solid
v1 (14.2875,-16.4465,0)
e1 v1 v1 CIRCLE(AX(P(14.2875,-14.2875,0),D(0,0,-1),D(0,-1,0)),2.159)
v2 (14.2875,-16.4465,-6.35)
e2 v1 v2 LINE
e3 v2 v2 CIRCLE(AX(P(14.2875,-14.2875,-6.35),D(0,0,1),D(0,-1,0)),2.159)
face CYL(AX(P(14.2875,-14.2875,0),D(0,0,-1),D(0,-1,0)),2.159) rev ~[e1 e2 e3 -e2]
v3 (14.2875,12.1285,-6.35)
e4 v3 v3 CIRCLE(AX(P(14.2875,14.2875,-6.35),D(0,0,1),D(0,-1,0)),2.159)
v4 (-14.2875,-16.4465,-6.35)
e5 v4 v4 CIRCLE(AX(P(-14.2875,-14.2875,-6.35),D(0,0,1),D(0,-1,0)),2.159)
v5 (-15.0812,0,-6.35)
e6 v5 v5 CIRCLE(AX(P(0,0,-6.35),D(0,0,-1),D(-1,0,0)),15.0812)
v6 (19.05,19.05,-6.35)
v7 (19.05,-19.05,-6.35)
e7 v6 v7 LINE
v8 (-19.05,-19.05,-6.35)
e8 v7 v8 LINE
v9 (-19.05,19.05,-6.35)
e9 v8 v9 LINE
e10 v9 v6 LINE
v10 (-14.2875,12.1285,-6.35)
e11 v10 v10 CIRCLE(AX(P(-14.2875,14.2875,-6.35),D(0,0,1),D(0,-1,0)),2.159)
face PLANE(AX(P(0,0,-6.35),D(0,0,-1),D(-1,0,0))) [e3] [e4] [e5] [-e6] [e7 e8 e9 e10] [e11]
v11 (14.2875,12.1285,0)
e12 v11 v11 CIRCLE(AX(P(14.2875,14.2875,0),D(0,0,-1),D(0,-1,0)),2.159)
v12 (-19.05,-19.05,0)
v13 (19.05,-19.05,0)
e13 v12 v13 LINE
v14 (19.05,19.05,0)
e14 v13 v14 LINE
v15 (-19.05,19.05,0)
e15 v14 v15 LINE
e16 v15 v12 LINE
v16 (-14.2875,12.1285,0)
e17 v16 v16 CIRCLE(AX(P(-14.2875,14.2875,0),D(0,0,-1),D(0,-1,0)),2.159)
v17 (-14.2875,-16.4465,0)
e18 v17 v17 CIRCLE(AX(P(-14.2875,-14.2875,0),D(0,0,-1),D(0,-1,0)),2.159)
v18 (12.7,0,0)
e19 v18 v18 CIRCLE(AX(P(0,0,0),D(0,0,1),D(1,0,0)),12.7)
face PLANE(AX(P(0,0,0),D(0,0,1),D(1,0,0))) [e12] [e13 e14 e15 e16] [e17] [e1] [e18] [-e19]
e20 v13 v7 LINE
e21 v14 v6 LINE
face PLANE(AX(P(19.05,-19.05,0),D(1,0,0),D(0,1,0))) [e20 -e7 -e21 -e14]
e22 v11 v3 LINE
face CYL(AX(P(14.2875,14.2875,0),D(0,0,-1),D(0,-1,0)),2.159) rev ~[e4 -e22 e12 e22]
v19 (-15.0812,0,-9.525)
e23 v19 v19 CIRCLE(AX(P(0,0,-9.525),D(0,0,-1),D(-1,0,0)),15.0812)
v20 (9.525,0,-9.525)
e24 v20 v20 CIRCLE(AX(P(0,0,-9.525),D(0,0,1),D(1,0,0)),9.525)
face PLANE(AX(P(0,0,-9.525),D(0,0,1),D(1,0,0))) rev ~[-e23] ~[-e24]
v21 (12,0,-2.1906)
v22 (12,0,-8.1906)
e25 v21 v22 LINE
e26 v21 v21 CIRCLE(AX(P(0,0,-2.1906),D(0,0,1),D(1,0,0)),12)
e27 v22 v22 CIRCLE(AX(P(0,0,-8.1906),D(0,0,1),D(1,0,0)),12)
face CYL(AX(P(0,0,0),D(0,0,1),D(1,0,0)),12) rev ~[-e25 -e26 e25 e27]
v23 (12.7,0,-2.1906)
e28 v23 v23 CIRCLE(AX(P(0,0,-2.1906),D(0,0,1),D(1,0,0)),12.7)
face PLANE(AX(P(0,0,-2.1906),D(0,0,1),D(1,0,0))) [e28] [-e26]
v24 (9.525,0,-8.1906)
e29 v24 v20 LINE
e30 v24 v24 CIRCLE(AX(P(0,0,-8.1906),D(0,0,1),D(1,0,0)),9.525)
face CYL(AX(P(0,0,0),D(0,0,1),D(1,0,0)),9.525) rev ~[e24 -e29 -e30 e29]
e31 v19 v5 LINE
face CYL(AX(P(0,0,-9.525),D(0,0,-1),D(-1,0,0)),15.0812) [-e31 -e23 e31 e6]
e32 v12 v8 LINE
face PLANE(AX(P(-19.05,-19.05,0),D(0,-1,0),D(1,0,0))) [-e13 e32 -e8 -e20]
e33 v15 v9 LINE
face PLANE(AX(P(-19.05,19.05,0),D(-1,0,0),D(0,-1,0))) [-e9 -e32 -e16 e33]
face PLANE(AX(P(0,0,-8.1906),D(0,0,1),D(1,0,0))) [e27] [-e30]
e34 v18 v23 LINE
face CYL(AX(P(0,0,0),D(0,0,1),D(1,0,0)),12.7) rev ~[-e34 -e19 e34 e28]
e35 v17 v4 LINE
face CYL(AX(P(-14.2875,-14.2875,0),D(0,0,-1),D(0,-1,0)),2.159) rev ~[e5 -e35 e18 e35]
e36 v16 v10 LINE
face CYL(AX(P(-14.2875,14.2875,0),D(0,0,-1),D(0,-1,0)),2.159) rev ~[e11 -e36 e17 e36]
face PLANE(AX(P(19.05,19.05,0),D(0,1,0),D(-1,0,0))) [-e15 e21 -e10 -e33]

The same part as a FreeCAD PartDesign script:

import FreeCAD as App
import Part
import Sketcher
Q = App.Units.Quantity

doc = App.newDocument("Part")
params = doc.addObject("Spreadsheet::Sheet", "Params")
for row, (alias, value) in enumerate([
    ("sketch1_diameter", "0.75 in"),
    ("sketch1_width", "1.5 in"),
    ("pad1_length", "0.375 in"),
    ("sketch2_diameter", "1 in"),
    ("pocket1_length", "2.1906 mm"),
    ("sketch3_diameter", "0.75 in"),
    ("pocket2_length", "8.1906 mm"),
    ("sketch4_diameter", "0.17 in"),
    ("hole_diameter", "0.17 in"),
    ("sketch5_diameter", "1.1875 in"),
    ("sketch5_diameter2", "0.17 in"),
    ("sketch5_width", "1.5 in"),
    ("pocket3_length", "0.125 in"),
], start=1):
    params.set(f"A{row}", alias)
    params.set(f"B{row}", "=" + value)
    params.setAlias(f"B{row}", alias)

body = doc.addObject("PartDesign::Body", "Body")

# Sketch on XY plane
sketch1 = body.newObject("Sketcher::SketchObject", "Sketch")
sketch1.AttachmentSupport = (doc.getObject("XY_Plane"), [""])
sketch1.MapMode = "FlatFace"
sketch1.addGeometry(Part.LineSegment(App.Vector(-19, 19, 0), App.Vector(-19, -19, 0)), False)
sketch1.addGeometry(Part.LineSegment(App.Vector(-19, -19, 0), App.Vector(19, -19, 0)), False)
sketch1.addGeometry(Part.LineSegment(App.Vector(19, -19, 0), App.Vector(19, 19, 0)), False)
sketch1.addGeometry(Part.LineSegment(App.Vector(19, 19, 0), App.Vector(-19, 19, 0)), False)
sketch1.addGeometry(Part.Circle(App.Vector(0, 0, 0), App.Vector(0, 0, 1), 10), False)
sketch1.addConstraint(Sketcher.Constraint("Coincident", 0, 2, 1, 1))
sketch1.addConstraint(Sketcher.Constraint("Coincident", 1, 2, 2, 1))
sketch1.addConstraint(Sketcher.Constraint("Coincident", 2, 2, 3, 1))
sketch1.addConstraint(Sketcher.Constraint("Coincident", 3, 2, 0, 1))
sketch1.addConstraint(Sketcher.Constraint("Vertical", 0))
sketch1.addConstraint(Sketcher.Constraint("Horizontal", 1))
sketch1.addConstraint(Sketcher.Constraint("Vertical", 2))
sketch1.addConstraint(Sketcher.Constraint("Horizontal", 3))
sketch1.addConstraint(Sketcher.Constraint("Coincident", 4, 3, -1, 1))
sketch1.addConstraint(Sketcher.Constraint("Symmetric", 0, 2, 2, 2, -1, 1))
sketch1.addConstraint(Sketcher.Constraint("Equal", 3, 0))
sketch1.addConstraint(Sketcher.Constraint("Diameter", 4, Q("0.75 in")))
sketch1.addConstraint(Sketcher.Constraint("DistanceX", 1, 1, 1, 2, Q("1.5 in")))
sketch1.setExpression("Constraints[11]", "Params.sketch1_diameter")
sketch1.setExpression("Constraints[12]", "Params.sketch1_width")
pad1 = body.newObject("PartDesign::Pad", "Pad")
pad1.Profile = sketch1
pad1.setExpression("Length", "Params.pad1_length")
pad1.Reversed = True

# Sketch on XY plane
sketch2 = body.newObject("Sketcher::SketchObject", "Sketch001")
sketch2.AttachmentSupport = (doc.getObject("XY_Plane"), [""])
sketch2.MapMode = "FlatFace"
sketch2.addGeometry(Part.Circle(App.Vector(0, 0, 0), App.Vector(0, 0, 1), 13), False)
sketch2.addGeometry(Part.Circle(App.Vector(0, 0, 0), App.Vector(0, 0, 1), 12), False)
sketch2.addConstraint(Sketcher.Constraint("Coincident", 0, 3, -1, 1))
sketch2.addConstraint(Sketcher.Constraint("Coincident", 1, 3, -1, 1))
sketch2.addConstraint(Sketcher.Constraint("Diameter", 0, Q("1 in")))
sketch2.addConstraint(Sketcher.Constraint("Diameter", 1, Q("24 mm")))
sketch2.setExpression("Constraints[2]", "Params.sketch2_diameter")
pocket1 = body.newObject("PartDesign::Pocket", "Pocket")
pocket1.Profile = sketch2
pocket1.setExpression("Length", "Params.pocket1_length")

# Sketch on XY plane
sketch3 = body.newObject("Sketcher::SketchObject", "Sketch002")
sketch3.AttachmentSupport = (doc.getObject("XY_Plane"), [""])
sketch3.MapMode = "FlatFace"
sketch3.addGeometry(Part.Circle(App.Vector(0, 0, 0), App.Vector(0, 0, 1), 12), False)
sketch3.addGeometry(Part.Circle(App.Vector(0, 0, 0), App.Vector(0, 0, 1), 10), False)
sketch3.addConstraint(Sketcher.Constraint("Coincident", 0, 3, -1, 1))
sketch3.addConstraint(Sketcher.Constraint("Coincident", 1, 3, -1, 1))
sketch3.addConstraint(Sketcher.Constraint("Diameter", 1, Q("0.75 in")))
sketch3.addConstraint(Sketcher.Constraint("Diameter", 0, Q("24 mm")))
sketch3.setExpression("Constraints[2]", "Params.sketch3_diameter")
pocket2 = body.newObject("PartDesign::Pocket", "Pocket001")
pocket2.Profile = sketch3
pocket2.setExpression("Length", "Params.pocket2_length")

# Sketch on XY plane
sketch4 = body.newObject("Sketcher::SketchObject", "Sketch003")
sketch4.AttachmentSupport = (doc.getObject("XY_Plane"), [""])
sketch4.MapMode = "FlatFace"
sketch4.addGeometry(Part.Circle(App.Vector(-14.3, 14.3, 0), App.Vector(0, 0, 1), 2.2), False)
sketch4.addGeometry(Part.Circle(App.Vector(14.3, 14.3, 0), App.Vector(0, 0, 1), 2.2), False)
sketch4.addGeometry(Part.Circle(App.Vector(14.3, -14.3, 0), App.Vector(0, 0, 1), 2.2), False)
sketch4.addGeometry(Part.Circle(App.Vector(-14.3, -14.3, 0), App.Vector(0, 0, 1), 2.2), False)
sketch4.addConstraint(Sketcher.Constraint("Equal", 0, 1))
sketch4.addConstraint(Sketcher.Constraint("Equal", 1, 2))
sketch4.addConstraint(Sketcher.Constraint("Equal", 2, 3))
sketch4.addConstraint(Sketcher.Constraint("Symmetric", 0, 3, 2, 3, -1, 1))
sketch4.addConstraint(Sketcher.Constraint("Symmetric", 1, 3, 3, 3, -1, 1))
sketch4.addConstraint(Sketcher.Constraint("Symmetric", 0, 3, 1, 3, -2))
sketch4.addConstraint(Sketcher.Constraint("Diameter", 0, Q("0.17 in")))
sketch4.addConstraint(Sketcher.Constraint("DistanceX", 0, 3, -1, 1, Q("0.5625 in")))
sketch4.addConstraint(Sketcher.Constraint("DistanceY", -1, 1, 0, 3, Q("0.5625 in")))
sketch4.setExpression("Constraints[6]", "Params.sketch4_diameter")
doc.recompute()
hole = body.newObject("PartDesign::Hole", "Hole")
hole.Profile = sketch4
hole.ThreadType = "None"
hole.setExpression("Diameter", "Params.hole_diameter")
hole.DepthType = "ThroughAll"

# Sketch on XY plane
sketch5 = body.newObject("Sketcher::SketchObject", "Sketch004")
sketch5.AttachmentSupport = (doc.getObject("XY_Plane"), [""])
sketch5.MapMode = "FlatFace"
sketch5.AttachmentOffset = App.Placement(App.Vector(0, 0, -0.375 * 25.4), App.Rotation())
sketch5.addGeometry(Part.LineSegment(App.Vector(19.1, 19.1, 0), App.Vector(19.1, -19.1, 0)), False)
sketch5.addGeometry(Part.LineSegment(App.Vector(19.1, -19.1, 0), App.Vector(-19.1, -19.1, 0)), False)
sketch5.addGeometry(Part.LineSegment(App.Vector(-19.1, -19.1, 0), App.Vector(-19.1, 19.1, 0)), False)
sketch5.addGeometry(Part.LineSegment(App.Vector(-19.1, 19.1, 0), App.Vector(19.1, 19.1, 0)), False)
sketch5.addGeometry(Part.Circle(App.Vector(14.3, -14.3, 0), App.Vector(0, 0, 1), 2.2), False)
sketch5.addGeometry(Part.Circle(App.Vector(-14.3, -14.3, 0), App.Vector(0, 0, 1), 2.2), False)
sketch5.addGeometry(Part.Circle(App.Vector(14.3, 14.3, 0), App.Vector(0, 0, 1), 2.2), False)
sketch5.addGeometry(Part.Circle(App.Vector(0, 0, 0), App.Vector(0, 0, 1), 15.1), False)
sketch5.addGeometry(Part.Circle(App.Vector(-14.3, 14.3, 0), App.Vector(0, 0, 1), 2.2), False)
sketch5.addConstraint(Sketcher.Constraint("Coincident", 0, 2, 1, 1))
sketch5.addConstraint(Sketcher.Constraint("Coincident", 1, 2, 2, 1))
sketch5.addConstraint(Sketcher.Constraint("Coincident", 2, 2, 3, 1))
sketch5.addConstraint(Sketcher.Constraint("Coincident", 3, 2, 0, 1))
sketch5.addConstraint(Sketcher.Constraint("Vertical", 0))
sketch5.addConstraint(Sketcher.Constraint("Horizontal", 1))
sketch5.addConstraint(Sketcher.Constraint("Vertical", 2))
sketch5.addConstraint(Sketcher.Constraint("Horizontal", 3))
sketch5.addConstraint(Sketcher.Constraint("Coincident", 7, 3, -1, 1))
sketch5.addConstraint(Sketcher.Constraint("Equal", 4, 5))
sketch5.addConstraint(Sketcher.Constraint("Equal", 5, 6))
sketch5.addConstraint(Sketcher.Constraint("Equal", 6, 8))
sketch5.addConstraint(Sketcher.Constraint("Symmetric", 5, 3, 6, 3, -1, 1))
sketch5.addConstraint(Sketcher.Constraint("Symmetric", 4, 3, 8, 3, -1, 1))
sketch5.addConstraint(Sketcher.Constraint("Symmetric", 0, 2, 2, 2, -1, 1))
sketch5.addConstraint(Sketcher.Constraint("Symmetric", 4, 3, 5, 3, -2))
sketch5.addConstraint(Sketcher.Constraint("Equal", 3, 0))
sketch5.addConstraint(Sketcher.Constraint("Diameter", 7, Q("1.1875 in")))
sketch5.addConstraint(Sketcher.Constraint("Diameter", 4, Q("0.17 in")))
sketch5.addConstraint(Sketcher.Constraint("DistanceX", 1, 2, 1, 1, Q("1.5 in")))
sketch5.addConstraint(Sketcher.Constraint("DistanceX", -1, 1, 4, 3, Q("0.5625 in")))
sketch5.addConstraint(Sketcher.Constraint("DistanceY", 4, 3, -1, 1, Q("0.5625 in")))
sketch5.setExpression("Constraints[17]", "Params.sketch5_diameter")
sketch5.setExpression("Constraints[18]", "Params.sketch5_diameter2")
sketch5.setExpression("Constraints[19]", "Params.sketch5_width")
pocket3 = body.newObject("PartDesign::Pocket", "Pocket002")
pocket3.Profile = sketch5
pocket3.setExpression("Length", "Params.pocket3_length")
pocket3.Reversed = True

doc.recompute()
